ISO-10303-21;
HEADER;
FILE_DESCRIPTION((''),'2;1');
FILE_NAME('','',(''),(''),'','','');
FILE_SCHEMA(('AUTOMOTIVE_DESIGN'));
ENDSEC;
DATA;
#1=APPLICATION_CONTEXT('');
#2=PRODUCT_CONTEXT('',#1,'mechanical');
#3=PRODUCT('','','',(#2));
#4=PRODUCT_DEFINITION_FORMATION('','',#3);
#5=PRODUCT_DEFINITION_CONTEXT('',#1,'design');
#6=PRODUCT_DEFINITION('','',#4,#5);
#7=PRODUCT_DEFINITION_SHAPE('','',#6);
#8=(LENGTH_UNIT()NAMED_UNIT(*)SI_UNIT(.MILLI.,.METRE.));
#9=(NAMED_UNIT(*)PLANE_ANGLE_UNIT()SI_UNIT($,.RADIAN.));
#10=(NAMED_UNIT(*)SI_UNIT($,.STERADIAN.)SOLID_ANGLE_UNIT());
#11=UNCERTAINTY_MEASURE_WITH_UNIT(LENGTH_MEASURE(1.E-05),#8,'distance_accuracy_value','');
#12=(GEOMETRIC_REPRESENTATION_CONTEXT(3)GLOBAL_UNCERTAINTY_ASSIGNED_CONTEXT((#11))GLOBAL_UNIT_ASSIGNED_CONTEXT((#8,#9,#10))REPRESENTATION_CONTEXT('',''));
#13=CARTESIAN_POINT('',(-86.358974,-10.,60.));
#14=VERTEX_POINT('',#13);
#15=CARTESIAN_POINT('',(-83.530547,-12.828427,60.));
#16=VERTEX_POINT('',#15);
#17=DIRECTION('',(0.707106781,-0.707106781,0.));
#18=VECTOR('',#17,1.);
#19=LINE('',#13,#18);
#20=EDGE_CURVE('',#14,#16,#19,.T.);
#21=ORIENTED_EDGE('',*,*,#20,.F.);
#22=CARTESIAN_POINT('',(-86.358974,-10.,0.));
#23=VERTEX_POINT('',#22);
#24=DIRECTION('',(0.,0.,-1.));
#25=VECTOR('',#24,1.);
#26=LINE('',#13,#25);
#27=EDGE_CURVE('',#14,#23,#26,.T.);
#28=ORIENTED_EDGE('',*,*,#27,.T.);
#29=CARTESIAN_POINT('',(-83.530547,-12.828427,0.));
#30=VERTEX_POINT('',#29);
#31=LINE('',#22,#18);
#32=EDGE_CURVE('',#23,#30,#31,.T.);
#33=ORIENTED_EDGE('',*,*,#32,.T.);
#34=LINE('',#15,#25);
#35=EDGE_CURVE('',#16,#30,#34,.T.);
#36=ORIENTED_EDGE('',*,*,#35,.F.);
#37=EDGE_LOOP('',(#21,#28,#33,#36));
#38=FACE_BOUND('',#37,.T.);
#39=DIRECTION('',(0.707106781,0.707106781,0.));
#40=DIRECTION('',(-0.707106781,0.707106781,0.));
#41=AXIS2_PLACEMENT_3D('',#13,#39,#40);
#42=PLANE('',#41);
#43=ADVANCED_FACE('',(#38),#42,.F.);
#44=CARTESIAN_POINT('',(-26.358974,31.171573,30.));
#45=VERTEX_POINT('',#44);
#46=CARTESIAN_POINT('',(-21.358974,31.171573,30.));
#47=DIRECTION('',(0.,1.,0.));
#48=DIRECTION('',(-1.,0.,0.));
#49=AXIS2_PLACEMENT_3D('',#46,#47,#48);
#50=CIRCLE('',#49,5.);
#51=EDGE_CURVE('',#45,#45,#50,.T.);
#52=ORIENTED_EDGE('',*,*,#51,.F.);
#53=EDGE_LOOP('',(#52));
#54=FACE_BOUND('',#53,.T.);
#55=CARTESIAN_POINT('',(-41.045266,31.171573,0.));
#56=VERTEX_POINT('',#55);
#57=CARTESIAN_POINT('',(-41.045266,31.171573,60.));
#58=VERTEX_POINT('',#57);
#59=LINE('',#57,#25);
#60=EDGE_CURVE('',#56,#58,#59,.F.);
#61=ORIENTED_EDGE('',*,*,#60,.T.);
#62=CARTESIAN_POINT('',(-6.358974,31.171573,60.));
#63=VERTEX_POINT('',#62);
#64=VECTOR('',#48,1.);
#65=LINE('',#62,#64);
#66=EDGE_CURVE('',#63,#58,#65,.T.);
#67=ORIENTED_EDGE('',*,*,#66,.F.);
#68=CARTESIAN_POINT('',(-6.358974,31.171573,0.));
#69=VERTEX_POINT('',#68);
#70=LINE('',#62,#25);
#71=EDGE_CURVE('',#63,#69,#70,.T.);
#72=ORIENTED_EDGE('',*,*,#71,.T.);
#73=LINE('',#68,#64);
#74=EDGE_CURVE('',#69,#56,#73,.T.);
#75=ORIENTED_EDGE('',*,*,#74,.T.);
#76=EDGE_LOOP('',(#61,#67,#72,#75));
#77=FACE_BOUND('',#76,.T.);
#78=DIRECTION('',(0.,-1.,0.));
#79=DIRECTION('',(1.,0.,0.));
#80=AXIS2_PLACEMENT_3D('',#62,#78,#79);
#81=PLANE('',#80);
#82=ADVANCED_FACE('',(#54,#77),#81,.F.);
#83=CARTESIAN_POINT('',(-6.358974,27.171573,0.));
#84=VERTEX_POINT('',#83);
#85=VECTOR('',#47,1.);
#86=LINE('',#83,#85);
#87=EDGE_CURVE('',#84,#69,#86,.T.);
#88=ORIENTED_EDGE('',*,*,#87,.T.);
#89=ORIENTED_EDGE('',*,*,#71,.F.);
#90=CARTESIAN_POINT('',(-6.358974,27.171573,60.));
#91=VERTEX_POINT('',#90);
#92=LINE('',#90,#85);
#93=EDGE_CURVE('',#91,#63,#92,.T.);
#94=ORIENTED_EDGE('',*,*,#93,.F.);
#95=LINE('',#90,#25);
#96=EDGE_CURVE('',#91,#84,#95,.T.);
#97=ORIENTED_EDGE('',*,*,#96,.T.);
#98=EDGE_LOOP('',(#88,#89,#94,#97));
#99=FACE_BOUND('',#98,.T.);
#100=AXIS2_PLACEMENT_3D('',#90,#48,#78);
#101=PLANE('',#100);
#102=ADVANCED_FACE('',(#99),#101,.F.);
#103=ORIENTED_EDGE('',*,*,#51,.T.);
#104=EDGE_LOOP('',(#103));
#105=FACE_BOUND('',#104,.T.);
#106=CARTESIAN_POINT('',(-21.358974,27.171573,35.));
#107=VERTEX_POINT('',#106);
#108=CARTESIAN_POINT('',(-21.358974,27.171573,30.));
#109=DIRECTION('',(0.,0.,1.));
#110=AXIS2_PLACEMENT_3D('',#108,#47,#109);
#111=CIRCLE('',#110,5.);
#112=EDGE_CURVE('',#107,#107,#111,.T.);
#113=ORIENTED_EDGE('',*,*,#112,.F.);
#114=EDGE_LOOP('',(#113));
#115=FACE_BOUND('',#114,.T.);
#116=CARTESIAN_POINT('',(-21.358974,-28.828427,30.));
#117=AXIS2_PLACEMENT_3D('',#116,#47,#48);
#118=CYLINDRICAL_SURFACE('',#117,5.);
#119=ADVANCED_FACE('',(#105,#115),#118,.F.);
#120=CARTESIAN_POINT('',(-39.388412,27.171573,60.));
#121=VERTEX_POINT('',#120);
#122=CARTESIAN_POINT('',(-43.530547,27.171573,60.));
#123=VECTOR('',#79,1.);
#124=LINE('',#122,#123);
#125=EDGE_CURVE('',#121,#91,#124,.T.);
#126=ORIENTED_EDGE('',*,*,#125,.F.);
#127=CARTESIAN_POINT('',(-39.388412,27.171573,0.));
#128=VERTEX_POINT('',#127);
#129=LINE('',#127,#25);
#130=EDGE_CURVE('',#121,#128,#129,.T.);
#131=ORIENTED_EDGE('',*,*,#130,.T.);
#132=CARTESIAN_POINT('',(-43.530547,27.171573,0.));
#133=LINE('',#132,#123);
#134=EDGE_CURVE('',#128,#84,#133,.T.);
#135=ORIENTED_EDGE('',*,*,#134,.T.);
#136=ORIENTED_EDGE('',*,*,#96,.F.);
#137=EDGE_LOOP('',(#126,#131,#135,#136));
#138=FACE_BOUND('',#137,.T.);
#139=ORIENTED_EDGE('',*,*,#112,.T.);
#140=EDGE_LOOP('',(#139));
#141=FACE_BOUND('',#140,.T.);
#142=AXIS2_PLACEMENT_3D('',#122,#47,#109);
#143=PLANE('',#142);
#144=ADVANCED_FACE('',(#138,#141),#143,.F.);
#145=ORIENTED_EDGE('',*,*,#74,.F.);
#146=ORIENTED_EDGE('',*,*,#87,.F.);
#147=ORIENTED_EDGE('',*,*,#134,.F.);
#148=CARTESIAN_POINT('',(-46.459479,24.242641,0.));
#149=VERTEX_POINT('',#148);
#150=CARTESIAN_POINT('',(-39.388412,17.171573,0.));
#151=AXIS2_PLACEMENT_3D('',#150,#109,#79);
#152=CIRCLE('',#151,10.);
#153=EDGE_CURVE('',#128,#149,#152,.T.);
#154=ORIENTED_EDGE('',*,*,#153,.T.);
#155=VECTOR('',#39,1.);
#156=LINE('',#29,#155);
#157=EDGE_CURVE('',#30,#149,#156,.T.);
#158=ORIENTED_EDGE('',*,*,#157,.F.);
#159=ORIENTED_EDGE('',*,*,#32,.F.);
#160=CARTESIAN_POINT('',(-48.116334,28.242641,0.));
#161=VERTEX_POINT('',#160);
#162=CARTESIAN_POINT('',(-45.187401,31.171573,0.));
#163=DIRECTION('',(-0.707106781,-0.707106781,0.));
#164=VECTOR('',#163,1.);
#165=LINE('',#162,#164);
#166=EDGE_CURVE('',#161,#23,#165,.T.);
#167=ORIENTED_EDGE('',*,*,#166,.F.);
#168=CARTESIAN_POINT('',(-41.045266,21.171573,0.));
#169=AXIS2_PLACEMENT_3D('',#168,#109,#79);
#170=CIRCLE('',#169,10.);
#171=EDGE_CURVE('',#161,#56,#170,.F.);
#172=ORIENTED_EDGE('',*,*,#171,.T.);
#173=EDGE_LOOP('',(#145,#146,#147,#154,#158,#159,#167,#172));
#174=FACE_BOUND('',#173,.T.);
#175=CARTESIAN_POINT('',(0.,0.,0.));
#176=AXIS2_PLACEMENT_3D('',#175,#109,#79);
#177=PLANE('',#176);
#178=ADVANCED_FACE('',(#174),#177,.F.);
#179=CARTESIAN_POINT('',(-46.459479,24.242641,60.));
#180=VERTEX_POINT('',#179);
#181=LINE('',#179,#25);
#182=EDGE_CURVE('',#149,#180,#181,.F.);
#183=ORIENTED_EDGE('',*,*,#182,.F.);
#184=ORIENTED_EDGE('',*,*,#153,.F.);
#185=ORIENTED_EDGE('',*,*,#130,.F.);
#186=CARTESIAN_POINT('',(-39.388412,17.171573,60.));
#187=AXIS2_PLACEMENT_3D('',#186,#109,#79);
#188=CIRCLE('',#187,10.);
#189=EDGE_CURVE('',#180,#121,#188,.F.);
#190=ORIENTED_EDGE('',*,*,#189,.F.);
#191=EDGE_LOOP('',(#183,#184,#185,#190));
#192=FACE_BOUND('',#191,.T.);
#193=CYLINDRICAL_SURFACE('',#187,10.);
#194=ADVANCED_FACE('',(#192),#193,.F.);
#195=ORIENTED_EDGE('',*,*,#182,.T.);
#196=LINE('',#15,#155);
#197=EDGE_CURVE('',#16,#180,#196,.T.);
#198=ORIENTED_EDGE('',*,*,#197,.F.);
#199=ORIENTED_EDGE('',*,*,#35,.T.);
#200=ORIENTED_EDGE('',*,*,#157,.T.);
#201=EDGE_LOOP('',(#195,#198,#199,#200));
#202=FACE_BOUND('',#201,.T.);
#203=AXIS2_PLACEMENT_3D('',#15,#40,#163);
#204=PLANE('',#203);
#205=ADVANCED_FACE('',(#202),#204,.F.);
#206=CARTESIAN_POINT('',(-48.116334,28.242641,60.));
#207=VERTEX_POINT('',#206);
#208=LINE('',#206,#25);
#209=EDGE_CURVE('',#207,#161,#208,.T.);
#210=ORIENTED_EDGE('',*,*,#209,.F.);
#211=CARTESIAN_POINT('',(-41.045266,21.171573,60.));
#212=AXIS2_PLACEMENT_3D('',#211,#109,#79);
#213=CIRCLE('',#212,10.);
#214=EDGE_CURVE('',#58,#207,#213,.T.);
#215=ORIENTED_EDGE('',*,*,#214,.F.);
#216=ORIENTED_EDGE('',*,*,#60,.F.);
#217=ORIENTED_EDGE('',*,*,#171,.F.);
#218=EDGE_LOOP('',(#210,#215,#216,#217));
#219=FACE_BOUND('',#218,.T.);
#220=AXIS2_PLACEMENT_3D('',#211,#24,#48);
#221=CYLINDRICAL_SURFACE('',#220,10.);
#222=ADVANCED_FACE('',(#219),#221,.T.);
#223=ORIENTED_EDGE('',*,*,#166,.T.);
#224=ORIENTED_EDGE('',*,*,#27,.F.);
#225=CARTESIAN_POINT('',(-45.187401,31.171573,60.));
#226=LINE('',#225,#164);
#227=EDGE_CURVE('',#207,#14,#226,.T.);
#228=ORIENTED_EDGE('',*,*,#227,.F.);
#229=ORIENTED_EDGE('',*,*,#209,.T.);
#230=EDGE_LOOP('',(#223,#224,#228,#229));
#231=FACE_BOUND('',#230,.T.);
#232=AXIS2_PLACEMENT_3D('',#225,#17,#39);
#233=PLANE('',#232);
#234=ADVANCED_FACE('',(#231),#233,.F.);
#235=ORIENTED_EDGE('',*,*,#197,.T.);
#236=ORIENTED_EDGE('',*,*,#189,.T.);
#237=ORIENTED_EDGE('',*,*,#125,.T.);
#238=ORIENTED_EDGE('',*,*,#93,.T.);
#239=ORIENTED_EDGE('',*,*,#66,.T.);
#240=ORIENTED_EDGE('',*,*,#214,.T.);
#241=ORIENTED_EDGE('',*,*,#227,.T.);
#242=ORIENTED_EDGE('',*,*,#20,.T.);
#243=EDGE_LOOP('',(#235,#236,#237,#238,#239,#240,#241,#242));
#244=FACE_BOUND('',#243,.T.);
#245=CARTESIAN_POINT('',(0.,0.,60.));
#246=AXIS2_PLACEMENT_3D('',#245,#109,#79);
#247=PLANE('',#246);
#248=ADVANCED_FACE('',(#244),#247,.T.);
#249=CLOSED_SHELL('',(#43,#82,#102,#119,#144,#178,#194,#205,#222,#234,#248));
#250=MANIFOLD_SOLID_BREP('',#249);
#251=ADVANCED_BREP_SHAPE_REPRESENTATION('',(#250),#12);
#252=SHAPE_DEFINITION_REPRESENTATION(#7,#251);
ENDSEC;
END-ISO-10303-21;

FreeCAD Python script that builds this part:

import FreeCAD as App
import Part
import Sketcher

V = App.Vector
Q = App.Units.Quantity


def edges_at(feature, points):
    """Names of the edges that pass closest to the given points."""
    edges = feature.Shape.Edges
    near = lambda p: min(range(len(edges)), key=lambda i: edges[i].distToShape(Part.Vertex(*p))[0])
    return sorted({f"Edge{near(p) + 1}" for p in points})


def add_polygon(sketch, points):
    """Adds a closed chain of lines whose ends are joined by coincident constraints."""
    first, n = sketch.GeometryCount, len(points)
    for a, b in zip(points, points[1:] + points[:1]):
        sketch.addGeometry(Part.LineSegment(App.Vector(*a, 0), App.Vector(*b, 0)), False)
    for i in range(n):
        sketch.addConstraint(Sketcher.Constraint("Coincident", first + i, 2, first + (i + 1) % n, 1))

doc = App.newDocument("Part")
body = doc.addObject("PartDesign::Body", "Body")

# Sketch on XY plane
sketch1 = body.newObject("Sketcher::SketchObject", "Sketch")
sketch1.AttachmentSupport = (doc.getObject("XY_Plane"), [""])
sketch1.MapMode = "FlatFace"
add_polygon(sketch1, [(-86.358974, -10), (-83.530547, -12.828427), (-43.530547, 27.171573), (-6.358974, 27.171573), (-6.358974, 31.171573), (-45.187401, 31.171573)])  # lines 0-5
sketch1.addConstraint([
    Sketcher.Constraint("Horizontal", 2),
    Sketcher.Constraint("Vertical", 3),
    Sketcher.Constraint("Horizontal", 4),
    Sketcher.Constraint("Perpendicular", 0, 1),
    Sketcher.Constraint("Parallel", 1, 5),
    Sketcher.Constraint("DistanceY", 3, 1, 3, 2, Q("4 mm")),
    Sketcher.Constraint("Angle", 0, Q("-45 deg")),
    Sketcher.Constraint("Distance", 0, Q("4 mm")),
    Sketcher.Constraint("DistanceY", 5, 2, -1, 1, Q("10 mm")),
    Sketcher.Constraint("DistanceX", 0, 2, 1, 2, Q("40 mm")),
    Sketcher.Constraint("DistanceX", 5, 2, 2, 2, Q("80 mm")),
    Sketcher.Constraint("DistanceX", 4, 2, -1, 1, Q("45.187401 mm")),
])
pad1 = body.newObject("PartDesign::Pad", "Pad")
pad1.Profile = sketch1
pad1.Length = 60
doc.recompute()

fillet = body.newObject("PartDesign::Fillet", "Fillet")
fillet.Base = (pad1, edges_at(pad1, [(-45.187, 31.172, 30), (-43.531, 27.172, 30)]))
fillet.Radius = 10

# Sketch on XZ plane
sketch2 = body.newObject("Sketcher::SketchObject", "Sketch001")
sketch2.AttachmentSupport = (doc.getObject("XZ_Plane"), [""])
sketch2.MapMode = "FlatFace"
sketch2.AttachmentOffset = App.Placement(V(0, 0, -31.171573), App.Rotation())
sketch2.addGeometry(Part.Circle(V(-21.358974, 30, 0), V(0, 0, 1), 5), False)
sketch2.addConstraint([
    Sketcher.Constraint("Diameter", 0, Q("10 mm")),
    Sketcher.Constraint("DistanceY", -1, 1, 0, 3, Q("30 mm")),
    Sketcher.Constraint("DistanceX", 0, 3, -1, 1, Q("21.358974 mm")),
])
pocket1 = body.newObject("PartDesign::Pocket", "Pocket")
pocket1.Profile = sketch2
pocket1.Length = 60
pocket1.Reversed = True

doc.recompute()
